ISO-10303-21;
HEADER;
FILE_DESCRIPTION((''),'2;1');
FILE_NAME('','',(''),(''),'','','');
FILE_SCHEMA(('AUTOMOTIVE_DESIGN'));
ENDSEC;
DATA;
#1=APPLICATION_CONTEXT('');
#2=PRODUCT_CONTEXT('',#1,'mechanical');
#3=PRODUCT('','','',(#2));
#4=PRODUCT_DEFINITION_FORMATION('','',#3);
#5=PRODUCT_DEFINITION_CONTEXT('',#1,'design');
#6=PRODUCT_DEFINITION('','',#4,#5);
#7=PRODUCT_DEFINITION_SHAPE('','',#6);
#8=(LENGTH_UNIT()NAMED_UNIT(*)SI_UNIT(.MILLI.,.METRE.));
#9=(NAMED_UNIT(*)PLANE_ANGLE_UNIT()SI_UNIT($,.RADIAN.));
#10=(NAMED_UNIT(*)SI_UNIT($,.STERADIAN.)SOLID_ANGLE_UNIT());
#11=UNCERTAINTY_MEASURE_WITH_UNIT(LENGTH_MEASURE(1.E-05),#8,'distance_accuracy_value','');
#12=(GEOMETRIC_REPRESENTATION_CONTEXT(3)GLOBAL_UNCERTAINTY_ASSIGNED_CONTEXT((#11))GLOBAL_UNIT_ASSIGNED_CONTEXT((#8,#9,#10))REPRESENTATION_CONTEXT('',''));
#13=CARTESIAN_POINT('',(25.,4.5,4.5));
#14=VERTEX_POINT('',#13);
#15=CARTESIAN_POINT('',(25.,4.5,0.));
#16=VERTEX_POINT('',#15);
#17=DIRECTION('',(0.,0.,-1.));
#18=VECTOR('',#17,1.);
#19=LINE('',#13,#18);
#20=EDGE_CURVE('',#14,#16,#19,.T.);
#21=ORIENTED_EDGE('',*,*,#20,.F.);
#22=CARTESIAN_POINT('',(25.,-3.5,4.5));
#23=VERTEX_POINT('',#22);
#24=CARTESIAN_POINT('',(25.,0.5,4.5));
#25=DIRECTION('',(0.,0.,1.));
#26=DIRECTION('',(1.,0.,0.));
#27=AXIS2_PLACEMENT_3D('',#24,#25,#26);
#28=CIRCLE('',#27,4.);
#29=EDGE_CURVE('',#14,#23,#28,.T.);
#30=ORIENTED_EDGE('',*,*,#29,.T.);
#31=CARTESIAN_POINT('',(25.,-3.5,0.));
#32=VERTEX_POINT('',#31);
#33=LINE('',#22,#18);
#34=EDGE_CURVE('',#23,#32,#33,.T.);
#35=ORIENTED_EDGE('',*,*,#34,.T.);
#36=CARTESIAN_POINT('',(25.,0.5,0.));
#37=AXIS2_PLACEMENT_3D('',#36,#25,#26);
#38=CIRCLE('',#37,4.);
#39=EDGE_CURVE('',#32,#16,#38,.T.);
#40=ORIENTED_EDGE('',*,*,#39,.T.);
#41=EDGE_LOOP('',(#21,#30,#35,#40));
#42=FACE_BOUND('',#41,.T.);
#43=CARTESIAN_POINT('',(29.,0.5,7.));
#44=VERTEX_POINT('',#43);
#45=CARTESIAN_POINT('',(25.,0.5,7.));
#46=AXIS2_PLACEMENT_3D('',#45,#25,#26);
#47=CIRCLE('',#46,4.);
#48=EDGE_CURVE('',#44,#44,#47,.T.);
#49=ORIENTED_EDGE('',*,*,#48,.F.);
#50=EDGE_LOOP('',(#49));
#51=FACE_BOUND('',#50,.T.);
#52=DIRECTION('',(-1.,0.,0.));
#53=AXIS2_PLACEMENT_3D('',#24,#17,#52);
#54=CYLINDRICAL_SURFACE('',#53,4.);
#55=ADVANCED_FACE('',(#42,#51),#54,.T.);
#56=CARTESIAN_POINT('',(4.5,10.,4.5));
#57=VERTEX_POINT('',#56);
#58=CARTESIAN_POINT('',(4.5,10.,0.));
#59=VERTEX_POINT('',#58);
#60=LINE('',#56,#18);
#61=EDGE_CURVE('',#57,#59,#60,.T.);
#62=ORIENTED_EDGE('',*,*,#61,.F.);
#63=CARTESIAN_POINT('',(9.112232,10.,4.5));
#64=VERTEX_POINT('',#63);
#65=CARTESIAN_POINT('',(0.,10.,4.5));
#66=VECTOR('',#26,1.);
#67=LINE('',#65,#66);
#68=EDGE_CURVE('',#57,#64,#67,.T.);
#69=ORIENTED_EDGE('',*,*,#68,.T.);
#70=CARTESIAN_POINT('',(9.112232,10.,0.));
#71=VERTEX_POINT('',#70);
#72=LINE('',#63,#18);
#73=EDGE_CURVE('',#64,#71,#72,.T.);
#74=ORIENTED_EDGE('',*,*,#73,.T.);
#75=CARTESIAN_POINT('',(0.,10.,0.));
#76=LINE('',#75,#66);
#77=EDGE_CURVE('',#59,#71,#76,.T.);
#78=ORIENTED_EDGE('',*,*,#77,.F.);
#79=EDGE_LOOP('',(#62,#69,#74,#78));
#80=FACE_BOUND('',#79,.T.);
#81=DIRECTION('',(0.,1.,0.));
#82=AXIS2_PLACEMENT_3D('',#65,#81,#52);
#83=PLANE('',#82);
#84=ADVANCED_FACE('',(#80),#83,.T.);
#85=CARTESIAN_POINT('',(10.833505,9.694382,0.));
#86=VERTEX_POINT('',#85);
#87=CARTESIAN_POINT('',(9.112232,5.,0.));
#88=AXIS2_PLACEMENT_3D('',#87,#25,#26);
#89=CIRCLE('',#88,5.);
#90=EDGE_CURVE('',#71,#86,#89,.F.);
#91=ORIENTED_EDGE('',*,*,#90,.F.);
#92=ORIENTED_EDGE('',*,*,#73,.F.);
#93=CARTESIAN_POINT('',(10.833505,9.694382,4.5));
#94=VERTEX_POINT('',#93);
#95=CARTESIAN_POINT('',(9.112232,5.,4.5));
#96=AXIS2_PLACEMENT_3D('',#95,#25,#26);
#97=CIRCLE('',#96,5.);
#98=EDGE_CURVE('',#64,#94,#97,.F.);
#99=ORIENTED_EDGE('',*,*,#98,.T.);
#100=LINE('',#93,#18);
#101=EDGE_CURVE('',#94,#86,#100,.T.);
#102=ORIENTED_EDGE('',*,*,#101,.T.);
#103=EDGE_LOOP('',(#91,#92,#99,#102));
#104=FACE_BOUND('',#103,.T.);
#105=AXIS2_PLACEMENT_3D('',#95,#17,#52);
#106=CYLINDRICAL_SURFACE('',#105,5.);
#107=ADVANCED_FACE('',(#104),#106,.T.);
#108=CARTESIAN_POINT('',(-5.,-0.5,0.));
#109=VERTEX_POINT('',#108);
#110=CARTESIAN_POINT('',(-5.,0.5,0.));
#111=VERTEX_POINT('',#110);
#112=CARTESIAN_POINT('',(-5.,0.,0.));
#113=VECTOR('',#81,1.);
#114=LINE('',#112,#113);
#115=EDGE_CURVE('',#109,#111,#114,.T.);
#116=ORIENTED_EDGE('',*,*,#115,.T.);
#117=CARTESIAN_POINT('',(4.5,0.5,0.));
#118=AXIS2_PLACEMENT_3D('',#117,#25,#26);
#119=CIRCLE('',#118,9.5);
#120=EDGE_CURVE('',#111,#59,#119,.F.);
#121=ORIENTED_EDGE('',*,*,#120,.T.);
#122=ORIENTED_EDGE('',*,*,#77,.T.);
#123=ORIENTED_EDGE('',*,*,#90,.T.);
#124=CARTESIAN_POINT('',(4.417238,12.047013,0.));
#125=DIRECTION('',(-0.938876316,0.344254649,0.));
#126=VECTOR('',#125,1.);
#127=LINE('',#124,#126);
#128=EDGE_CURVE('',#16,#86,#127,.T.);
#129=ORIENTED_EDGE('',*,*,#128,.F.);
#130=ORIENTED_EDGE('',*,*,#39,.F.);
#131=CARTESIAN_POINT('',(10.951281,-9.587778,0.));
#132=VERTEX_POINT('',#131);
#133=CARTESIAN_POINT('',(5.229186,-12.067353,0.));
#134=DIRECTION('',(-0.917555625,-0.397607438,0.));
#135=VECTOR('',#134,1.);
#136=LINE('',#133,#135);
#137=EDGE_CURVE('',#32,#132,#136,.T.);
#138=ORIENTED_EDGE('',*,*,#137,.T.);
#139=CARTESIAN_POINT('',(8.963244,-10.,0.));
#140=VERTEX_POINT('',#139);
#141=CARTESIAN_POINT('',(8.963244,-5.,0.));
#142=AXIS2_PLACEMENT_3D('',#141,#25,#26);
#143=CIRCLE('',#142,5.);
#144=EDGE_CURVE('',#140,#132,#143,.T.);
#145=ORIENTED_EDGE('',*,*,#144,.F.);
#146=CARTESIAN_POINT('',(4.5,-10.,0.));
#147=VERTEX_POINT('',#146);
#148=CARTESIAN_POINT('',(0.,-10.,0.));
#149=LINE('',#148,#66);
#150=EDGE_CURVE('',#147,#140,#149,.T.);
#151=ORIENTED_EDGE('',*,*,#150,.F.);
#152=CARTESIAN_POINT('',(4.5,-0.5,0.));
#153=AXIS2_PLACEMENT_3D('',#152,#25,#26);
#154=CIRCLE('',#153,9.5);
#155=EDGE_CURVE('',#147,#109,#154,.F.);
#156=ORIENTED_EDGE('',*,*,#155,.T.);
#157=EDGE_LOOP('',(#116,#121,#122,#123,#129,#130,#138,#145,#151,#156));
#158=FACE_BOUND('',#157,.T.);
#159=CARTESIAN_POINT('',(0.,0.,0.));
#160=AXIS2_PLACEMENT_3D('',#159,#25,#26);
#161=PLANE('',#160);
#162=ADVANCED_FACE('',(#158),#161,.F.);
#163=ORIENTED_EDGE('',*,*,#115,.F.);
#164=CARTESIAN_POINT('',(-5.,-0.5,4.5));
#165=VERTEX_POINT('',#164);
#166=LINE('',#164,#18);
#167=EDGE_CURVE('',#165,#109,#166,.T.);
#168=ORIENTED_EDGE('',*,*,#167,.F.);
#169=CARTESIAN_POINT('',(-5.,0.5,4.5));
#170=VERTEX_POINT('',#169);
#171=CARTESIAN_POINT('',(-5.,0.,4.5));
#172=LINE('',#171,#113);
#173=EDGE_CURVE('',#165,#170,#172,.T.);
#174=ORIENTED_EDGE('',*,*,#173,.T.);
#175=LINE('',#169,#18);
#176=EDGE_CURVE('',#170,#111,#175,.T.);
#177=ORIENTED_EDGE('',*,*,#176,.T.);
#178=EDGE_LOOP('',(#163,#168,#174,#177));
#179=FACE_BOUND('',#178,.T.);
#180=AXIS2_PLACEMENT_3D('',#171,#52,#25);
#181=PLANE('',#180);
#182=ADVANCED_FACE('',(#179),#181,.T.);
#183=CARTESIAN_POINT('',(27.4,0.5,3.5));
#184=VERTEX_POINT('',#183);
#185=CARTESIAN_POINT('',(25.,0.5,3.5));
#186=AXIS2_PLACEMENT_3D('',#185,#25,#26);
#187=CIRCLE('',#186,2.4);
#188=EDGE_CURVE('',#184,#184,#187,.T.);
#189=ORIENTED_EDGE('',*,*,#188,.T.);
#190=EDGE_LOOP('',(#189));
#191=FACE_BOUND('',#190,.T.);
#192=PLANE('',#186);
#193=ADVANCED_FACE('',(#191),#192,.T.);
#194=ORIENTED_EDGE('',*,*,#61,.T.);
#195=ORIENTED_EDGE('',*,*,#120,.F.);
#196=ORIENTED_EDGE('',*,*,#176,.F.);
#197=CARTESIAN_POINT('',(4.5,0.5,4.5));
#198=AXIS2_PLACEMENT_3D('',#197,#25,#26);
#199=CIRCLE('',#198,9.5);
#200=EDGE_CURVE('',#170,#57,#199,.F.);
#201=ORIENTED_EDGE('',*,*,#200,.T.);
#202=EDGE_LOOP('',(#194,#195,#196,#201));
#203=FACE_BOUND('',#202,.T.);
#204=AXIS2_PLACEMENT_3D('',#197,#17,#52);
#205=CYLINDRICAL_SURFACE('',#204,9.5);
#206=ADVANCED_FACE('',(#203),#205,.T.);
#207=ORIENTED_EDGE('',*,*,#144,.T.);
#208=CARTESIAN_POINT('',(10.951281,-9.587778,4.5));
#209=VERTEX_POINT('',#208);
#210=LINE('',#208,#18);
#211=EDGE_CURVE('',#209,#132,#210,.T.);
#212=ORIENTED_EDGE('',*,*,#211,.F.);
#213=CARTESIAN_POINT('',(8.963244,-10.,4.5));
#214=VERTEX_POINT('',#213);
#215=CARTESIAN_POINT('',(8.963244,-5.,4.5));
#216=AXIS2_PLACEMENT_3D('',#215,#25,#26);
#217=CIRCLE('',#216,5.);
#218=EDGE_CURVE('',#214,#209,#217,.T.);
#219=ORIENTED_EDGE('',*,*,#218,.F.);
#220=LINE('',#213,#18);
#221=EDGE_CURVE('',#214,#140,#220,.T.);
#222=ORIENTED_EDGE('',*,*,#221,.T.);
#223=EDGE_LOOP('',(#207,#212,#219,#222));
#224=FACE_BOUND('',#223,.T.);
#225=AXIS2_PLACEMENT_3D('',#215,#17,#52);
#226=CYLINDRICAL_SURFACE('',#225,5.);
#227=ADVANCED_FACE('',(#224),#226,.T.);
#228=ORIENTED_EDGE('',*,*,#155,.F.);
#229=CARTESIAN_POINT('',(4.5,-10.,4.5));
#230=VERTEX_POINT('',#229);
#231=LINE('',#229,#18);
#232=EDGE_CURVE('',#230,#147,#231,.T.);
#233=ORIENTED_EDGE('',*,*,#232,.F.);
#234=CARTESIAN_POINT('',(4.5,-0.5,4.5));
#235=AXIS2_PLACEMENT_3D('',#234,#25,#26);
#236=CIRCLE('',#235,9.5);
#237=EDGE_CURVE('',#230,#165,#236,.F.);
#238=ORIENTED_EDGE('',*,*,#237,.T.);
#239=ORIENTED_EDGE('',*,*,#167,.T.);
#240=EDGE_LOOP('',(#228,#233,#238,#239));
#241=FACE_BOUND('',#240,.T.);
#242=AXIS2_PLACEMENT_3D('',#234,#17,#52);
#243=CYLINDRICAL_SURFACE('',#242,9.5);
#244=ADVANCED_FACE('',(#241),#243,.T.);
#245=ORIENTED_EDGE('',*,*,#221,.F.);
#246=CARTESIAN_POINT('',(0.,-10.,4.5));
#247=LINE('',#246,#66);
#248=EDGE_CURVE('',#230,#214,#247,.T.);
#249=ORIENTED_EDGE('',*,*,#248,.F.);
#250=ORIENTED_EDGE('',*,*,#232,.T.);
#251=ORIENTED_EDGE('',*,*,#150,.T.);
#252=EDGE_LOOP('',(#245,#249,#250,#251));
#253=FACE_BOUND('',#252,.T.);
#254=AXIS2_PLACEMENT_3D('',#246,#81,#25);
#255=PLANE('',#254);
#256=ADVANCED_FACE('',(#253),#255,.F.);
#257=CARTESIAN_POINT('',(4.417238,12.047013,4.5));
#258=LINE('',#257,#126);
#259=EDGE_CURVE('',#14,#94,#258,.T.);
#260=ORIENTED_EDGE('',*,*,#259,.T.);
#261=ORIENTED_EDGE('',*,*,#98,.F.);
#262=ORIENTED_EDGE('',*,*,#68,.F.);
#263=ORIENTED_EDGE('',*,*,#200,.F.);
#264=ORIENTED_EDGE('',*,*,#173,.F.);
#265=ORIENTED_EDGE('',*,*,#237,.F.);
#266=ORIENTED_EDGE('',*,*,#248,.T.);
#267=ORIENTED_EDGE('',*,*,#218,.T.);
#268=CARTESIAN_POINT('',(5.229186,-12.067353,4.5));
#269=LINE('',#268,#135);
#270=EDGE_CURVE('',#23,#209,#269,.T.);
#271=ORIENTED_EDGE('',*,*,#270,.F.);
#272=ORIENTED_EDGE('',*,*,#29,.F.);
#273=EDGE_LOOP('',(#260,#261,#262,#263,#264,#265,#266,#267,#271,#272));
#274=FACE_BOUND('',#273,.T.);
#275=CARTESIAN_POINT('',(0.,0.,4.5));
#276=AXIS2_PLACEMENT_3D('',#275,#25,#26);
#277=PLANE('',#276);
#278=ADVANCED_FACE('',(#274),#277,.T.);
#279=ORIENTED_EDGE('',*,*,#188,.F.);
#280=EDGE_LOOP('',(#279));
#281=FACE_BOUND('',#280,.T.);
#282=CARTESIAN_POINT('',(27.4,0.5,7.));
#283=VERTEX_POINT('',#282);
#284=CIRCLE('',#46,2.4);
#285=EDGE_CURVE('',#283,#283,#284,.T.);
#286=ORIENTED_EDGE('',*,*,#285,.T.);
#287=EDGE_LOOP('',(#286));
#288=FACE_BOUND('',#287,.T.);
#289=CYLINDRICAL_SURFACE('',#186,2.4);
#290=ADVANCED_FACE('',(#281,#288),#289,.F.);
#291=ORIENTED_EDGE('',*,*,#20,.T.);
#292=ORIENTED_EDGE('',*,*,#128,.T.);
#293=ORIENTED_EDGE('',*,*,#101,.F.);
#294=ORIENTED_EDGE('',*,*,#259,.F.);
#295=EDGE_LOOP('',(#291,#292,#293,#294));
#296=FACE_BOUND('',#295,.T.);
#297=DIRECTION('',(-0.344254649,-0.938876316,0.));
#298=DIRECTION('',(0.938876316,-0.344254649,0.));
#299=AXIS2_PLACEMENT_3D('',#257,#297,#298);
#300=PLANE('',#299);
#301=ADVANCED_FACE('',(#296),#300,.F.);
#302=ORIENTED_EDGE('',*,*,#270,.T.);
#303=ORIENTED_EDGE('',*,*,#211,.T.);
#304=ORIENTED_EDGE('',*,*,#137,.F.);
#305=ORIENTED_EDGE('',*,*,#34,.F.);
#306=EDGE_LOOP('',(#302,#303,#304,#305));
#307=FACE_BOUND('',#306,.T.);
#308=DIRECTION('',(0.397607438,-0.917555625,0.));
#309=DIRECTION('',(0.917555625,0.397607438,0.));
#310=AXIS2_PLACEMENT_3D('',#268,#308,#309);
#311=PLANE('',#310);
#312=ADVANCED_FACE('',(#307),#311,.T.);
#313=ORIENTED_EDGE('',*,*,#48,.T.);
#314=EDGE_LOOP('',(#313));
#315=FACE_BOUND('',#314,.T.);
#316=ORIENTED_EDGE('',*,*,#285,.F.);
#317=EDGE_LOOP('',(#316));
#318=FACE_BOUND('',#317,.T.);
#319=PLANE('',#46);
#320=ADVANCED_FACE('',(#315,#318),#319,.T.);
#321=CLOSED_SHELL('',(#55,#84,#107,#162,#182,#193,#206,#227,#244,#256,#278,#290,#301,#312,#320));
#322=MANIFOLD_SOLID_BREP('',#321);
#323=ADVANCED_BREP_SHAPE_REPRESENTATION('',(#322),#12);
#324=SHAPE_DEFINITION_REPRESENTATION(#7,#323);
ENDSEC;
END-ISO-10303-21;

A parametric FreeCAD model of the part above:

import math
import FreeCAD as App
import Part
import Sketcher

doc = App.newDocument("Part")
params = doc.addObject("Spreadsheet::Sheet", "Params")
for row, (alias, value) in enumerate([
    ("sketch1_radius", "5 mm"),
    ("sketch1_radius2", "4 mm"),
    ("sketch1_radius3", "9.5 mm"),
    ("sketch1_height", "1 mm"),
    ("pad1_length", "4.5 mm"),
    ("sketch2_diameter", "8 mm"),
    ("pad2_length", "2.5 mm"),
    ("sketch3_diameter", "4.8 mm"),
    ("pocket1_length", "3.5 mm"),
], start=1):
    params.set(f"A{row}", alias)
    params.set(f"B{row}", "=" + value)
    params.setAlias(f"B{row}", alias)

body = doc.addObject("PartDesign::Body", "Body")

sketch1 = body.newObject("Sketcher::SketchObject", "Sketch")
sketch1.AttachmentSupport = (doc.getObject("XY_Plane"), [""])
sketch1.MapMode = "FlatFace"
sketch1.addGeometry([
    Part.LineSegment(App.Vector(25, 4.5, 0), App.Vector(10.8, 9.7, 0)),
    Part.ArcOfCircle(Part.Circle(App.Vector(9.1, 5, 0), App.Vector(0, 0, 1), 5), math.radians(70), math.radians(90)),
    Part.LineSegment(App.Vector(9.1, 10, 0), App.Vector(4.5, 10, 0)),
    Part.ArcOfCircle(Part.Circle(App.Vector(4.5, 0.5, 0), App.Vector(0, 0, 1), 9.5), math.radians(90), math.radians(180)),
    Part.LineSegment(App.Vector(-5, 0.5, 0), App.Vector(-5, -0.5, 0)),
    Part.ArcOfCircle(Part.Circle(App.Vector(4.5, -0.5, 0), App.Vector(0, 0, 1), 9.5), math.radians(-180), math.radians(-90)),
    Part.LineSegment(App.Vector(4.5, -10, 0), App.Vector(9, -10, 0)),
    Part.ArcOfCircle(Part.Circle(App.Vector(9, -5, 0), App.Vector(0, 0, 1), 5), math.radians(-90), math.radians(-67)),
    Part.LineSegment(App.Vector(11, -9.6, 0), App.Vector(25, -3.5, 0)),
    Part.ArcOfCircle(Part.Circle(App.Vector(25, 0.5, 0), App.Vector(0, 0, 1), 4), math.radians(-90), math.radians(90)),
], False)
sketch1.addConstraint([
    Sketcher.Constraint("Tangent", 0, 2, 1, 1),
    Sketcher.Constraint("Tangent", 1, 2, 2, 1),
    Sketcher.Constraint("Tangent", 2, 2, 3, 1),
    Sketcher.Constraint("Tangent", 3, 2, 4, 1),
    Sketcher.Constraint("Tangent", 4, 2, 5, 1),
    Sketcher.Constraint("Tangent", 5, 2, 6, 1),
    Sketcher.Constraint("Tangent", 6, 2, 7, 1),
    Sketcher.Constraint("Tangent", 7, 2, 8, 1),
    Sketcher.Constraint("Coincident", 8, 2, 9, 1),
    Sketcher.Constraint("Coincident", 9, 2, 0, 1),
    Sketcher.Constraint("Horizontal", 2),
    Sketcher.Constraint("Vertical", 4),
    Sketcher.Constraint("Horizontal", 6),
    Sketcher.Constraint("Equal", 3, 5),
    Sketcher.Constraint("Equal", 1, 7),
    Sketcher.Constraint("Horizontal", 3, 3, 9, 3),
    Sketcher.Constraint("Vertical", 9, 3, 8, 2),
    Sketcher.Constraint("Vertical", 8, 2, 9, 2),
    Sketcher.Constraint("Radius", 1, 5.0),
    Sketcher.Constraint("Radius", 9, 4.0),
    Sketcher.Constraint("Radius", 3, 9.5),
    Sketcher.Constraint("DistanceY", 4, 2, 4, 1, 1.0),
    Sketcher.Constraint("DistanceY", -1, 1, 1, 3, 5.0),
    Sketcher.Constraint("DistanceX", -1, 1, 9, 3, 25.0),
    Sketcher.Constraint("DistanceX", 3, 2, -1, 1, 5.0),
    Sketcher.Constraint("DistanceX", 2, 2, 2, 1, 4.612232),
    Sketcher.Constraint("DistanceX", 6, 1, 6, 2, 4.463244),
])
sketch1.setExpression("Constraints[18]", "Params.sketch1_radius")
sketch1.setExpression("Constraints[19]", "Params.sketch1_radius2")
sketch1.setExpression("Constraints[20]", "Params.sketch1_radius3")
sketch1.setExpression("Constraints[21]", "Params.sketch1_height")
pad1 = body.newObject("PartDesign::Pad", "Pad")
pad1.Profile = sketch1
pad1.setExpression("Length", "Params.pad1_length")

sketch2 = body.newObject("Sketcher::SketchObject", "Sketch001")
sketch2.AttachmentSupport = (doc.getObject("XY_Plane"), [""])
sketch2.MapMode = "FlatFace"
sketch2.AttachmentOffset = App.Placement(App.Vector(0, 0, 4.5), App.Rotation())
sketch2.addGeometry(Part.Circle(App.Vector(25, 0.5, 0), App.Vector(0, 0, 1), 4), False)
sketch2.addConstraint([
    Sketcher.Constraint("Diameter", 0, 8.0),
    Sketcher.Constraint("DistanceX", -1, 1, 0, 3, 25.0),
    Sketcher.Constraint("DistanceY", -1, 1, 0, 3, 0.5),
])
sketch2.setExpression("Constraints[0]", "Params.sketch2_diameter")
pad2 = body.newObject("PartDesign::Pad", "Pad001")
pad2.Profile = sketch2
pad2.setExpression("Length", "Params.pad2_length")

sketch3 = body.newObject("Sketcher::SketchObject", "Sketch002")
sketch3.AttachmentSupport = (doc.getObject("XY_Plane"), [""])
sketch3.MapMode = "FlatFace"
sketch3.AttachmentOffset = App.Placement(App.Vector(0, 0, 7), App.Rotation())
sketch3.addGeometry(Part.Circle(App.Vector(25, 0.5, 0), App.Vector(0, 0, 1), 2.4), False)
sketch3.addConstraint([
    Sketcher.Constraint("Diameter", 0, 4.8),
    Sketcher.Constraint("DistanceX", -1, 1, 0, 3, 25.0),
    Sketcher.Constraint("DistanceY", -1, 1, 0, 3, 0.5),
])
sketch3.setExpression("Constraints[0]", "Params.sketch3_diameter")
pocket1 = body.newObject("PartDesign::Pocket", "Pocket")
pocket1.Profile = sketch3
pocket1.setExpression("Length", "Params.pocket1_length")

doc.recompute()
